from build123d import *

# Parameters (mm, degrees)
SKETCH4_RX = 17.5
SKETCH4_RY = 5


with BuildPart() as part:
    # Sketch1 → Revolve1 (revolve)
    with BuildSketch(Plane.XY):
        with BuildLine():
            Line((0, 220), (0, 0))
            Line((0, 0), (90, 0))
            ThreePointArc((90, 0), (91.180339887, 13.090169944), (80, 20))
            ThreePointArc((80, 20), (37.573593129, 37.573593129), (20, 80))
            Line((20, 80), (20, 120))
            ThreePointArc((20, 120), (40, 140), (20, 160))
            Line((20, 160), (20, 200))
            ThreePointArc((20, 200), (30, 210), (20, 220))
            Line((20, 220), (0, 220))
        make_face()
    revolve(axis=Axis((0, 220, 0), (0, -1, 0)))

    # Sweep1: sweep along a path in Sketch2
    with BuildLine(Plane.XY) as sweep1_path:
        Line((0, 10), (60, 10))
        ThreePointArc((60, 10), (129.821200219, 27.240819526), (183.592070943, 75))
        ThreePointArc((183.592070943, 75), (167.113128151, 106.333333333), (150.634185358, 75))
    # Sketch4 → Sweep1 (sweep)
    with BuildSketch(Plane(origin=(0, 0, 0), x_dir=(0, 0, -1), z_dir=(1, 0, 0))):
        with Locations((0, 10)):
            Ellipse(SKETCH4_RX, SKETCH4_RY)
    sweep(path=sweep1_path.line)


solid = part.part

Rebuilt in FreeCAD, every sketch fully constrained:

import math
import FreeCAD as App
import Part
import Sketcher

V = App.Vector

doc = App.newDocument("Part")
params = doc.addObject("Spreadsheet::Sheet", "Params")
for row, (alias, value) in enumerate([
    ("sketch1_radius", "60 mm"),
    ("sketch1_radius2", "20 mm"),
    ("sketch1_radius3", "10 mm"),
    ("sketch1_radius4", "12.5 mm"),
    ("sketch1_width", "90 mm"),
    ("revolution_angle", "360 deg"),
    ("sketch3_radius", "150 mm"),
    ("sketch3_radius2", "20 mm"),
    ("sketch3_width", "60 mm"),
], start=1):
    params.set(f"A{row}", alias)
    params.set(f"B{row}", "=" + value)
    params.setAlias(f"B{row}", alias)

body = doc.addObject("PartDesign::Body", "Body")

sketch1 = body.newObject("Sketcher::SketchObject", "Sketch")
sketch1.AttachmentSupport = (doc.getObject("XY_Plane"), [""])
sketch1.MapMode = "FlatFace"
sketch1.addGeometry(Part.LineSegment(V(0, 220, 0), V(0, 0, 0)), False)
sketch1.addGeometry(Part.LineSegment(V(0, 0, 0), V(90, 0, 0)), False)
sketch1.addGeometry(Part.ArcOfCircle(Part.Circle(V(80, 7.5, 0), V(0, 0, 1), 12.5), math.radians(-36.869898), math.radians(90)), False)
sketch1.addGeometry(Part.ArcOfCircle(Part.Circle(V(80, 80, 0), V(0, 0, 1), 60), math.radians(-180), math.radians(-90)), False)
sketch1.addGeometry(Part.LineSegment(V(20, 80, 0), V(20, 120, 0)), False)
sketch1.addGeometry(Part.ArcOfCircle(Part.Circle(V(20, 140, 0), V(0, 0, 1), 20), math.radians(-90), math.radians(90)), False)
sketch1.addGeometry(Part.LineSegment(V(20, 160, 0), V(20, 200, 0)), False)
sketch1.addGeometry(Part.ArcOfCircle(Part.Circle(V(20, 210, 0), V(0, 0, 1), 10), math.radians(-90), math.radians(90)), False)
sketch1.addGeometry(Part.LineSegment(V(20, 220, 0), V(0, 220, 0)), False)
sketch1.addConstraint(Sketcher.Constraint("Coincident", 0, 2, 1, 1))
sketch1.addConstraint(Sketcher.Constraint("Coincident", 1, 2, 2, 1))
sketch1.addConstraint(Sketcher.Constraint("Tangent", 2, 2, 3, 2))
sketch1.addConstraint(Sketcher.Constraint("Tangent", 3, 1, 4, 1))
sketch1.addConstraint(Sketcher.Constraint("Coincident", 4, 2, 5, 1))
sketch1.addConstraint(Sketcher.Constraint("Coincident", 5, 2, 6, 1))
sketch1.addConstraint(Sketcher.Constraint("Coincident", 6, 2, 7, 1))
sketch1.addConstraint(Sketcher.Constraint("Tangent", 7, 2, 8, 1))
sketch1.addConstraint(Sketcher.Constraint("Coincident", 8, 2, 0, 1))
sketch1.addConstraint(Sketcher.Constraint("Vertical", 0))
sketch1.addConstraint(Sketcher.Constraint("Horizontal", 1))
sketch1.addConstraint(Sketcher.Constraint("Vertical", 4))
sketch1.addConstraint(Sketcher.Constraint("Vertical", 6))
sketch1.addConstraint(Sketcher.Constraint("Horizontal", 8))
sketch1.addConstraint(Sketcher.Constraint("Coincident", 0, 2, -1, 1))
sketch1.addConstraint(Sketcher.Constraint("Vertical", 2, 3, 3, 3))
sketch1.addConstraint(Sketcher.Constraint("Vertical", 5, 3, 7, 3))
sketch1.addConstraint(Sketcher.Constraint("Vertical", 7, 3, 3, 1))
sketch1.addConstraint(Sketcher.Constraint("Vertical", 4, 2, 5, 2))
sketch1.addConstraint(Sketcher.Constraint("Equal", 4, 6))
sketch1.addConstraint(Sketcher.Constraint("Radius", 3, 60.0))
sketch1.addConstraint(Sketcher.Constraint("Radius", 5, 20.0))
sketch1.addConstraint(Sketcher.Constraint("Radius", 7, 10.0))
sketch1.addConstraint(Sketcher.Constraint("Radius", 2, 12.5))
sketch1.addConstraint(Sketcher.Constraint("DistanceX", 1, 1, 1, 2, 90.0))
sketch1.addConstraint(Sketcher.Constraint("DistanceX", 8, 2, 8, 1, 20.0))
sketch1.addConstraint(Sketcher.Constraint("DistanceY", 0, 2, 0, 1, 220.0))
sketch1.setExpression("Constraints[20]", "Params.sketch1_radius")
sketch1.setExpression("Constraints[21]", "Params.sketch1_radius2")
sketch1.setExpression("Constraints[22]", "Params.sketch1_radius3")
sketch1.setExpression("Constraints[23]", "Params.sketch1_radius4")
sketch1.setExpression("Constraints[24]", "Params.sketch1_width")
revolution = body.newObject("PartDesign::Revolution", "Revolution")
revolution.Profile = sketch1
revolution.ReferenceAxis = (sketch1, ["V_Axis"])
revolution.setExpression("Angle", "Params.revolution_angle")

sketch2 = body.newObject("Sketcher::SketchObject", "Sketch001")
sketch2.AttachmentSupport = (doc.getObject("YZ_Plane"), [""])
sketch2.MapMode = "FlatFace"
sketch2.addGeometry(Part.Ellipse(V(10, -17.5, 0), V(15, 0, 0), V(10, 0, 0)), False)
sketch2.addConstraint(Sketcher.Constraint("Block", 0))

sketch3 = body.newObject("Sketcher::SketchObject", "Sketch002")
sketch3.AttachmentSupport = (doc.getObject("XY_Plane"), [""])
sketch3.MapMode = "FlatFace"
sketch3.addGeometry(Part.LineSegment(V(0, 10, 0), V(60, 10, 0)), False)
sketch3.addGeometry(Part.ArcOfCircle(Part.Circle(V(60, 160, 0), V(0, 0, 1), 150), math.radians(-90), math.radians(-34.518108)), False)
sketch3.addGeometry(Part.ArcOfCircle(Part.Circle(V(167.113128, 86.333333, 0), V(0, 0, 1), 20), math.radians(-34.518108), math.radians(214.518108)), False)
sketch3.addConstraint(Sketcher.Constraint("Tangent", 0, 2, 1, 1))
sketch3.addConstraint(Sketcher.Constraint("Tangent", 1, 2, 2, 1))
sketch3.addConstraint(Sketcher.Constraint("Horizontal", 0))
sketch3.addConstraint(Sketcher.Constraint("PointOnObject", 0, 1, -2))
sketch3.addConstraint(Sketcher.Constraint("Horizontal", 1, 2, 2, 2))
sketch3.addConstraint(Sketcher.Constraint("Radius", 1, 150.0))
sketch3.addConstraint(Sketcher.Constraint("Radius", 2, 20.0))
sketch3.addConstraint(Sketcher.Constraint("DistanceX", 0, 1, 0, 2, 60.0))
sketch3.addConstraint(Sketcher.Constraint("DistanceY", -1, 1, 1, 3, 160.0))
sketch3.addConstraint(Sketcher.Constraint("DistanceY", -1, 1, 1, 2, 75.0))
sketch3.setExpression("Constraints[5]", "Params.sketch3_radius")
sketch3.setExpression("Constraints[6]", "Params.sketch3_radius2")
sketch3.setExpression("Constraints[7]", "Params.sketch3_width")
doc.recompute()

additivepipe = body.newObject("PartDesign::AdditivePipe", "AdditivePipe")
additivepipe.Profile = sketch2
additivepipe.Spine = (sketch3, ["Edge1", "Edge2", "Edge3"])

doc.recompute()
